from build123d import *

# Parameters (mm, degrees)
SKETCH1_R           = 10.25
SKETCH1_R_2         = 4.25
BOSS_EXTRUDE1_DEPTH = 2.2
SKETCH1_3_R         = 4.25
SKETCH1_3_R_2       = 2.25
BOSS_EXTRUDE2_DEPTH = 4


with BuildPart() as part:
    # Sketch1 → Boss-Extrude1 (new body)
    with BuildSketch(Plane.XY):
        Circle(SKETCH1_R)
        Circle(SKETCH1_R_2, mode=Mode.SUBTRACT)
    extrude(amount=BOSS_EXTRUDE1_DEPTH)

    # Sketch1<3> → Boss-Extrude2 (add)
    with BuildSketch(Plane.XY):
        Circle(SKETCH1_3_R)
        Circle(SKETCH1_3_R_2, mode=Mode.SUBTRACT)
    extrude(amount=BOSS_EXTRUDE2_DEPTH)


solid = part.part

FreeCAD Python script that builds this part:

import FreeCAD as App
import Part
import Sketcher
from FreeCAD import Vector

doc = App.newDocument("Part")
body = doc.addObject("PartDesign::Body", "Body")

# Sketch on XY plane
sketch1 = body.newObject("Sketcher::SketchObject", "Sketch")
sketch1.AttachmentSupport = (doc.getObject("XY_Plane"), [""])
sketch1.MapMode = "FlatFace"
sketch1.addGeometry([
    Part.Circle(Vector(0, 0, 0), Vector(0, 0, 1), 10.2),
    Part.Circle(Vector(0, 0, 0), Vector(0, 0, 1), 4.2),
], False)
sketch1.addConstraint([
    Sketcher.Constraint("Coincident", 0, 3, -1, 1),
    Sketcher.Constraint("Coincident", 1, 3, -1, 1),
    Sketcher.Constraint("Diameter", 0, 20.5),
    Sketcher.Constraint("Diameter", 1, 8.5),
])
pad1 = body.newObject("PartDesign::Pad", "Pad")
pad1.Profile = sketch1
pad1.Length = 2.2

# Sketch on XY plane
sketch2 = body.newObject("Sketcher::SketchObject", "Sketch001")
sketch2.AttachmentSupport = (doc.getObject("XY_Plane"), [""])
sketch2.MapMode = "FlatFace"
sketch2.addGeometry([
    Part.Circle(Vector(0, 0, 0), Vector(0, 0, 1), 4.2),
    Part.Circle(Vector(0, 0, 0), Vector(0, 0, 1), 2.2),
], False)
sketch2.addConstraint([
    Sketcher.Constraint("Coincident", 0, 3, -1, 1),
    Sketcher.Constraint("Coincident", 1, 3, -1, 1),
    Sketcher.Constraint("Diameter", 0, 8.5),
    Sketcher.Constraint("Diameter", 1, 4.5),
])
pad2 = body.newObject("PartDesign::Pad", "Pad001")
pad2.Profile = sketch2
pad2.Length = 4

doc.recompute()
